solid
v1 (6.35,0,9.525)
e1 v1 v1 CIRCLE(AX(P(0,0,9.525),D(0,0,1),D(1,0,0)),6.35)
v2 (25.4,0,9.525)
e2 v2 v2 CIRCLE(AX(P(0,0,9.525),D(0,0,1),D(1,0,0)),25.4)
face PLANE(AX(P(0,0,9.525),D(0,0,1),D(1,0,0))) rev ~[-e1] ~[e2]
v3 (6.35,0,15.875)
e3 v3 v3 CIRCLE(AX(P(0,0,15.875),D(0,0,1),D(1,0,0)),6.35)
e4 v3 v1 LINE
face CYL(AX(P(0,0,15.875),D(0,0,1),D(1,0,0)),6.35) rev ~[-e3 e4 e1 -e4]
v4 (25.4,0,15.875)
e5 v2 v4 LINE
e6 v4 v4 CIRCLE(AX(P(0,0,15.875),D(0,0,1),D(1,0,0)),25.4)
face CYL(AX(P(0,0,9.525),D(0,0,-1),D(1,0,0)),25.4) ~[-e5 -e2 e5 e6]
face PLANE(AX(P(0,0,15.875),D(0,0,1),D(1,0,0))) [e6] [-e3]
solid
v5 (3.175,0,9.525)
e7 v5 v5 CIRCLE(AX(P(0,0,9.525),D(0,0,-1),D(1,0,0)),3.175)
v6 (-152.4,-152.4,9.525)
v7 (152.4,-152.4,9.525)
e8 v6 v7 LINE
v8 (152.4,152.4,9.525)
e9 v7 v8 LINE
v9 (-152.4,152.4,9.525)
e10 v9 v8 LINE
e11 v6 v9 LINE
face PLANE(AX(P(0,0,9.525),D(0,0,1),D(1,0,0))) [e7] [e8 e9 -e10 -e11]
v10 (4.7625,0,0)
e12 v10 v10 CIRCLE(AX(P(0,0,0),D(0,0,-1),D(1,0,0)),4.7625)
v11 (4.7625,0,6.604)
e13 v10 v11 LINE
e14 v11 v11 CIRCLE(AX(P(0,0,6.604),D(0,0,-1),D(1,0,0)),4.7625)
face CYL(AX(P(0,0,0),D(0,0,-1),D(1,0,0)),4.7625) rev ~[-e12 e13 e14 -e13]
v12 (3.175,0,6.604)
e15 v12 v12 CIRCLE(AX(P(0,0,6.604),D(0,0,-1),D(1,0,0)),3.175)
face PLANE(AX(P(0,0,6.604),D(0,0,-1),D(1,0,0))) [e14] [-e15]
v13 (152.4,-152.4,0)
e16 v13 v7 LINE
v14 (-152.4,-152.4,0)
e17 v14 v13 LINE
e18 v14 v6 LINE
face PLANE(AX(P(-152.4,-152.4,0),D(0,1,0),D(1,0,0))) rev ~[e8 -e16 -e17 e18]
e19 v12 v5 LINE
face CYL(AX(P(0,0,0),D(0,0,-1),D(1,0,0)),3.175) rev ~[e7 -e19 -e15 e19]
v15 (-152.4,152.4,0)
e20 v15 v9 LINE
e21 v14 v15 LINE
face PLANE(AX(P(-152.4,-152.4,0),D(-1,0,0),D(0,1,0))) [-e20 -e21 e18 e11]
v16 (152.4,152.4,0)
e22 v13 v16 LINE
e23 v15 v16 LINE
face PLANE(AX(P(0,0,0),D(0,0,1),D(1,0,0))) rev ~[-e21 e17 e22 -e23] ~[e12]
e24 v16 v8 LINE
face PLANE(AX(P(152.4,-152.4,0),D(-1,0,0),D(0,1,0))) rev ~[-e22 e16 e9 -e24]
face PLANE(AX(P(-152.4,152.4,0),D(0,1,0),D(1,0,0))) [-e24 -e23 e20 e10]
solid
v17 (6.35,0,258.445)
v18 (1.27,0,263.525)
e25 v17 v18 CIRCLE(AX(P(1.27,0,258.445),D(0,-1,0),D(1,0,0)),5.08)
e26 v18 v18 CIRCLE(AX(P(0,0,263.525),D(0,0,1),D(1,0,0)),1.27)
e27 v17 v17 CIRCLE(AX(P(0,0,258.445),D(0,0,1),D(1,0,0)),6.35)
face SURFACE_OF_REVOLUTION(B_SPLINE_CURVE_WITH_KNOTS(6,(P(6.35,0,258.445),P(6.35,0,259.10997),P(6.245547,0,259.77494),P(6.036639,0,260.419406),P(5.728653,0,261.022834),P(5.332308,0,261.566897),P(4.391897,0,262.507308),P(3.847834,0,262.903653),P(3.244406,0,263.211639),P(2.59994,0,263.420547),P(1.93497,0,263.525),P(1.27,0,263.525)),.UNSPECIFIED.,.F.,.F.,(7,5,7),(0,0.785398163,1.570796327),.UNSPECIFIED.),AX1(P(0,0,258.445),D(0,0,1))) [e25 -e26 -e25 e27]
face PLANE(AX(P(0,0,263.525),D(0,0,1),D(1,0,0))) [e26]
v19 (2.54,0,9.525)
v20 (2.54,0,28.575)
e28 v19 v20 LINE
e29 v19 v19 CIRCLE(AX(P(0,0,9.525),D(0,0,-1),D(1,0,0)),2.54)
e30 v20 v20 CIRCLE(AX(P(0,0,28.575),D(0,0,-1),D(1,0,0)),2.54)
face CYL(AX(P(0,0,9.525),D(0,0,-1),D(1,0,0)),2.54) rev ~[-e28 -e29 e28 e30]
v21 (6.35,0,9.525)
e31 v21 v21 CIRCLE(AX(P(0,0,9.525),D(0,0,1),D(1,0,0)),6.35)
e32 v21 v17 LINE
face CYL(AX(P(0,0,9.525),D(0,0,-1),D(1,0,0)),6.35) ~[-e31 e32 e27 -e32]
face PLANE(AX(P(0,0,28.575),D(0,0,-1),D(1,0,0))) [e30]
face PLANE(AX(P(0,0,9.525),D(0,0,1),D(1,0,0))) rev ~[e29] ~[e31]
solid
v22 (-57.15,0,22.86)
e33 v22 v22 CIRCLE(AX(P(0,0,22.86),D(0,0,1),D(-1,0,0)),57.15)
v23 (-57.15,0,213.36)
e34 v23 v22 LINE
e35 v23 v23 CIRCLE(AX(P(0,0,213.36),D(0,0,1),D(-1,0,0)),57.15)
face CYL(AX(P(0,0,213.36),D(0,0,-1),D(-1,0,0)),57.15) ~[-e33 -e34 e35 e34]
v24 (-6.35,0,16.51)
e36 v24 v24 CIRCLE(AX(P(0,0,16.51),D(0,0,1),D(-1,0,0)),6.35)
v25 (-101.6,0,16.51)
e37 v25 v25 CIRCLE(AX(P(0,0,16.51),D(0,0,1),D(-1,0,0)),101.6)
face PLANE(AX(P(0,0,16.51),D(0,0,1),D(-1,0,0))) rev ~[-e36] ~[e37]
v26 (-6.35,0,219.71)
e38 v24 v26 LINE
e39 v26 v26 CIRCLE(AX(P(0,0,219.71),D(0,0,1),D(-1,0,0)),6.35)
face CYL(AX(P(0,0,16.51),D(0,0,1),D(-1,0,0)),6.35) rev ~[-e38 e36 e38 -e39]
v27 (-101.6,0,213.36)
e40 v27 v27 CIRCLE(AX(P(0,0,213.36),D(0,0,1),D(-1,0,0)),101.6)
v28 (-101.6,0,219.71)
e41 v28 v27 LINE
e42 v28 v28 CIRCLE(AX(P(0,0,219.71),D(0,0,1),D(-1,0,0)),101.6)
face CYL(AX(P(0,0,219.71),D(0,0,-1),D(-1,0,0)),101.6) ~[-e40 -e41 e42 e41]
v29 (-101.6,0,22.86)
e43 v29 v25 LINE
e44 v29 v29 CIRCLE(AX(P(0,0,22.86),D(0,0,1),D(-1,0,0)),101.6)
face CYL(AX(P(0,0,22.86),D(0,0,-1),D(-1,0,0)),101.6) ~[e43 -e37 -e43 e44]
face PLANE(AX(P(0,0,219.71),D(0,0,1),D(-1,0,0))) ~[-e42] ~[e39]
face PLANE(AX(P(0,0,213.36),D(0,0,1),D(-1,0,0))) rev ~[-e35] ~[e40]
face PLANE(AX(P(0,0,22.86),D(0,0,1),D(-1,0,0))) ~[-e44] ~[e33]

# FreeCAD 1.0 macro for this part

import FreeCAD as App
import Part
import Sketcher
Q = App.Units.Quantity


def edges_at(feature, points):
    """Names of the edges that pass closest to the given points."""
    edges = feature.Shape.Edges
    near = lambda p: min(range(len(edges)), key=lambda i: edges[i].distToShape(Part.Vertex(*p))[0])
    return sorted({f"Edge{near(p) + 1}" for p in points})


def add_polygon(sketch, points):
    """Adds a closed chain of lines whose ends are joined by coincident constraints."""
    first, n = sketch.GeometryCount, len(points)
    for a, b in zip(points, points[1:] + points[:1]):
        sketch.addGeometry(Part.LineSegment(App.Vector(*a, 0), App.Vector(*b, 0)), False)
    for i in range(n):
        sketch.addConstraint(Sketcher.Constraint("Coincident", first + i, 2, first + (i + 1) % n, 1))

doc = App.newDocument("Part")
body = doc.addObject("PartDesign::Body", "Body")

# Sketch on XY plane
sketch1 = body.newObject("Sketcher::SketchObject", "Sketch")
sketch1.AttachmentSupport = (doc.getObject("XY_Plane"), [""])
sketch1.MapMode = "FlatFace"
add_polygon(sketch1, [(-152, 152), (-152, -152), (152, -152), (152, 152)])  # lines 0-3
sketch1.addConstraint([
    Sketcher.Constraint("Vertical", 0),
    Sketcher.Constraint("Horizontal", 1),
    Sketcher.Constraint("Vertical", 2),
    Sketcher.Constraint("Horizontal", 3),
    Sketcher.Constraint("Symmetric", 0, 2, 2, 2, -1, 1),
    Sketcher.Constraint("Equal", 3, 0),
    Sketcher.Constraint("DistanceX", 1, 1, 1, 2, Q("12 in")),
])
pad1 = body.newObject("PartDesign::Pad", "Pad")
pad1.Profile = sketch1
pad1.Length = Q("0.375 in")

# Sketch on XY plane
sketch2 = body.newObject("Sketcher::SketchObject", "Sketch001")
sketch2.AttachmentSupport = (doc.getObject("XY_Plane"), [""])
sketch2.MapMode = "FlatFace"
sketch2.addGeometry(Part.Circle(App.Vector(0, 0, 0), App.Vector(0, 0, 1), 3.2), False)
sketch2.addConstraint([
    Sketcher.Constraint("Coincident", 0, 3, -1, 1),
    Sketcher.Constraint("Diameter", 0, Q("0.25 in")),
])
pocket1 = body.newObject("PartDesign::Pocket", "Pocket")
pocket1.Profile = sketch2
pocket1.Type = "ThroughAll"
pocket1.Reversed = True

# Sketch on XY plane
sketch3 = body.newObject("Sketcher::SketchObject", "Sketch002")
sketch3.AttachmentSupport = (doc.getObject("XY_Plane"), [""])
sketch3.MapMode = "FlatFace"
sketch3.addGeometry(Part.Circle(App.Vector(0, 0, 0), App.Vector(0, 0, 1), 4.8), False)
sketch3.addConstraint([
    Sketcher.Constraint("Coincident", 0, 3, -1, 1),
    Sketcher.Constraint("Diameter", 0, Q("0.375 in")),
])
pocket2 = body.newObject("PartDesign::Pocket", "Pocket001")
pocket2.Profile = sketch3
pocket2.Length = Q("0.26 in")
pocket2.Reversed = True
body2 = doc.addObject("PartDesign::Body", "Body001")

# Sketch on XY plane
sketch4 = body2.newObject("Sketcher::SketchObject", "Sketch003")
sketch4.AttachmentSupport = (doc.getObject("XY_Plane001"), [""])
sketch4.MapMode = "FlatFace"
sketch4.AttachmentOffset = App.Placement(App.Vector(0, 0, 0.375 * 25.4), App.Rotation())
sketch4.addGeometry(Part.Circle(App.Vector(0, 0, 0), App.Vector(0, 0, 1), 25), False)
sketch4.addConstraint([
    Sketcher.Constraint("Coincident", 0, 3, -1, 1),
    Sketcher.Constraint("Diameter", 0, Q("2 in")),
])
pad2 = body2.newObject("PartDesign::Pad", "Pad001")
pad2.Profile = sketch4
pad2.Length = Q("0.25 in")

# Sketch on XY plane
sketch5 = body2.newObject("Sketcher::SketchObject", "Sketch004")
sketch5.AttachmentSupport = (doc.getObject("XY_Plane001"), [""])
sketch5.MapMode = "FlatFace"
sketch5.AttachmentOffset = App.Placement(App.Vector(0, 0, 0.625 * 25.4), App.Rotation())
sketch5.addGeometry(Part.Circle(App.Vector(0, 0, 0), App.Vector(0, 0, 1), 6), False)
sketch5.addConstraint([
    Sketcher.Constraint("Coincident", 0, 3, -1, 1),
    Sketcher.Constraint("Diameter", 0, Q("0.5 in")),
])
pocket3 = body2.newObject("PartDesign::Pocket", "Pocket002")
pocket3.Profile = sketch5
pocket3.Type = "ThroughAll"
body3 = doc.addObject("PartDesign::Body", "Body002")

# Sketch on XY plane
sketch6 = body3.newObject("Sketcher::SketchObject", "Sketch005")
sketch6.AttachmentSupport = (doc.getObject("XY_Plane002"), [""])
sketch6.MapMode = "FlatFace"
sketch6.AttachmentOffset = App.Placement(App.Vector(0, 0, 0.375 * 25.4), App.Rotation())
sketch6.addGeometry(Part.Circle(App.Vector(0, 0, 0), App.Vector(0, 0, 1), 6), False)
sketch6.addConstraint([
    Sketcher.Constraint("Coincident", 0, 3, -1, 1),
    Sketcher.Constraint("Diameter", 0, Q("0.5 in")),
])
pad3 = body3.newObject("PartDesign::Pad", "Pad002")
pad3.Profile = sketch6
pad3.Length = Q("10 in")
doc.recompute()

fillet = body3.newObject("PartDesign::Fillet", "Fillet")
fillet.Base = (pad3, edges_at(pad3, [(-6.35, 0, 263.525)]))
fillet.Radius = Q("0.2 in")

# Sketch on XY plane
sketch7 = body3.newObject("Sketcher::SketchObject", "Sketch006")
sketch7.AttachmentSupport = (doc.getObject("XY_Plane002"), [""])
sketch7.MapMode = "FlatFace"
sketch7.AttachmentOffset = App.Placement(App.Vector(0, 0, 0.375 * 25.4), App.Rotation())
sketch7.addGeometry(Part.Circle(App.Vector(0, 0, 0), App.Vector(0, 0, 1), 2.5), False)
sketch7.addConstraint([
    Sketcher.Constraint("Coincident", 0, 3, -1, 1),
    Sketcher.Constraint("Diameter", 0, Q("0.2 in")),
])
pocket4 = body3.newObject("PartDesign::Pocket", "Pocket003")
pocket4.Profile = sketch7
pocket4.Length = Q("0.75 in")
pocket4.Reversed = True
body4 = doc.addObject("PartDesign::Body", "Body003")

# Sketch on XZ plane
sketch8 = body4.newObject("Sketcher::SketchObject", "Sketch007")
sketch8.AttachmentSupport = (doc.getObject("XZ_Plane003"), [""])
sketch8.MapMode = "FlatFace"
add_polygon(sketch8, [(-102, 17), (-6, 17), (-6, 220), (-102, 220), (-102, 213), (-57, 213), (-57, 23), (-102, 23)])  # lines 0-7
sketch8.addConstraint([
    Sketcher.Constraint("Horizontal", 0),
    Sketcher.Constraint("Vertical", 1),
    Sketcher.Constraint("Horizontal", 2),
    Sketcher.Constraint("Vertical", 3),
    Sketcher.Constraint("Horizontal", 4),
    Sketcher.Constraint("Vertical", 5),
    Sketcher.Constraint("Horizontal", 6),
    Sketcher.Constraint("Vertical", 7),
    Sketcher.Constraint("Vertical", 3, 2, 6, 2),
    Sketcher.Constraint("Equal", 3, 7),
    Sketcher.Constraint("DistanceY", 1, 1, 1, 2, Q("8 in")),
    Sketcher.Constraint("DistanceY", 5, 2, 5, 1, Q("7.5 in")),
    Sketcher.Constraint("DistanceX", 2, 2, -1, 1, Q("4 in")),
    Sketcher.Constraint("DistanceX", 4, 2, 1, 2, Q("2 in")),
    Sketcher.Constraint("DistanceX", 0, 1, 0, 2, Q("3.75 in")),
    Sketcher.Constraint("DistanceY", -1, 1, 3, 2, Q("8.4 in")),
])
revolution = body4.newObject("PartDesign::Revolution", "Revolution")
revolution.Profile = sketch8
revolution.ReferenceAxis = (sketch8, ["V_Axis"])
revolution.Angle = 360

doc.recompute()
